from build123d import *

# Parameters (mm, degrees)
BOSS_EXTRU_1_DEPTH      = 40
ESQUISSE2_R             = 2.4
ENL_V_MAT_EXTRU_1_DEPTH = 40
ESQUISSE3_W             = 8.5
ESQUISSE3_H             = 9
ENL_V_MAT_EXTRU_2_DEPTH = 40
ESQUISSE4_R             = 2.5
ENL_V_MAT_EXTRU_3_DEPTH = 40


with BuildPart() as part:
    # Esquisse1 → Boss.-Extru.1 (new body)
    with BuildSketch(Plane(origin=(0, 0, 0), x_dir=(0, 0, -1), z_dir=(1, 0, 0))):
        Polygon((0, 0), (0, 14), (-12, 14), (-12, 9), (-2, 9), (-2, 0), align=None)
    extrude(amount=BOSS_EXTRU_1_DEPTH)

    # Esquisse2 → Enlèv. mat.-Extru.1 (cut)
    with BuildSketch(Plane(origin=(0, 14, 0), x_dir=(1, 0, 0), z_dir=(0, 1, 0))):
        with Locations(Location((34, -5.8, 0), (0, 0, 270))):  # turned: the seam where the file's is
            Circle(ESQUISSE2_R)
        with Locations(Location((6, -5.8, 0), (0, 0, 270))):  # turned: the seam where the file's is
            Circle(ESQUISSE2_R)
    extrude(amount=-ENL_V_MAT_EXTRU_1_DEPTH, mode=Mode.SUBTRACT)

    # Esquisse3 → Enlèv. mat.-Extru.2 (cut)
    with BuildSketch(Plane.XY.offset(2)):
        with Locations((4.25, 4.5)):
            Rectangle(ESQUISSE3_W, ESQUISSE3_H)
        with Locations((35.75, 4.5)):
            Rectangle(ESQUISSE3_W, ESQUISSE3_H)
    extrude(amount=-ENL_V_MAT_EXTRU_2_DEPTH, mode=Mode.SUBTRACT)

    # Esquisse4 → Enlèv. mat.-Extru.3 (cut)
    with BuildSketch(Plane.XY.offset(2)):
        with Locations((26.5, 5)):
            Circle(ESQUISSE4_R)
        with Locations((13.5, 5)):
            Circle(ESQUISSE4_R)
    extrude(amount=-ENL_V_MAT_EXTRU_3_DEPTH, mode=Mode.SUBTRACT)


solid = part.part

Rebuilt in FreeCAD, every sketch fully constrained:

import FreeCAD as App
import Part
import Sketcher
Q = App.Units.Quantity

doc = App.newDocument("Part")
params = doc.addObject("Spreadsheet::Sheet", "Params")
for row, (alias, value) in enumerate([
    ("sketch1_width", "14 mm"),
    ("sketch1_width2", "5 mm"),
    ("sketch1_height", "12 mm"),
    ("sketch1_height2", "10 mm"),
    ("pad1_length", "40 mm"),
    ("sketch2_diameter", "4.8 mm"),
    ("pocket1_length", "40 mm"),
    ("sketch3_height", "9 mm"),
    ("sketch3_width", "8.5 mm"),
    ("pocket2_length", "40 mm"),
    ("sketch4_diameter", "5 mm"),
    ("pocket3_length", "40 mm"),
], start=1):
    params.set(f"A{row}", alias)
    params.set(f"B{row}", "=" + value)
    params.setAlias(f"B{row}", alias)

body = doc.addObject("PartDesign::Body", "Body")

# Sketch on YZ plane
sketch1 = body.newObject("Sketcher::SketchObject", "Sketch")
sketch1.AttachmentSupport = (doc.getObject("YZ_Plane"), [""])
sketch1.MapMode = "FlatFace"
sketch1.addGeometry([
    Part.LineSegment(App.Vector(0, 0, 0), App.Vector(14, 0, 0)),  # 0
    Part.LineSegment(App.Vector(14, 0, 0), App.Vector(14, 12, 0)),  # 1
    Part.LineSegment(App.Vector(14, 12, 0), App.Vector(9, 12, 0)),  # 2
    Part.LineSegment(App.Vector(9, 12, 0), App.Vector(9, 2, 0)),  # 3
    Part.LineSegment(App.Vector(9, 2, 0), App.Vector(0, 2, 0)),  # 4
    Part.LineSegment(App.Vector(0, 2, 0), App.Vector(0, 0, 0)),  # 5
], False)
sketch1.addConstraint([
    Sketcher.Constraint("Coincident", 0, 2, 1, 1),
    Sketcher.Constraint("Coincident", 1, 2, 2, 1),
    Sketcher.Constraint("Coincident", 2, 2, 3, 1),
    Sketcher.Constraint("Coincident", 3, 2, 4, 1),
    Sketcher.Constraint("Coincident", 4, 2, 5, 1),
    Sketcher.Constraint("Coincident", 5, 2, 0, 1),
    Sketcher.Constraint("Horizontal", 0),
    Sketcher.Constraint("Vertical", 1),
    Sketcher.Constraint("Horizontal", 2),
    Sketcher.Constraint("Vertical", 3),
    Sketcher.Constraint("Horizontal", 4),
    Sketcher.Constraint("Vertical", 5),
    Sketcher.Constraint("Coincident", 5, 2, -1, 1),
    Sketcher.Constraint("DistanceX", 0, 1, 0, 2, Q("14 mm")),
    Sketcher.Constraint("DistanceX", 2, 2, 2, 1, Q("5 mm")),
    Sketcher.Constraint("DistanceY", 1, 1, 1, 2, Q("12 mm")),
    Sketcher.Constraint("DistanceY", 3, 2, 3, 1, Q("10 mm")),
])
sketch1.setExpression("Constraints[13]", "Params.sketch1_width")
sketch1.setExpression("Constraints[14]", "Params.sketch1_width2")
sketch1.setExpression("Constraints[15]", "Params.sketch1_height")
sketch1.setExpression("Constraints[16]", "Params.sketch1_height2")
pad1 = body.newObject("PartDesign::Pad", "Pad")
pad1.Profile = sketch1
pad1.setExpression("Length", "Params.pad1_length")

# Sketch on XZ plane
sketch2 = body.newObject("Sketcher::SketchObject", "Sketch001")
sketch2.AttachmentSupport = (doc.getObject("XZ_Plane"), [""])
sketch2.MapMode = "FlatFace"
sketch2.AttachmentOffset = App.Placement(App.Vector(0, 0, -14), App.Rotation())
sketch2.addGeometry([
    Part.Circle(App.Vector(34, 5.8, 0), App.Vector(0, 0, 1), 2.4),
    Part.Circle(App.Vector(6, 5.8, 0), App.Vector(0, 0, 1), 2.4),
], False)
sketch2.addConstraint([
    Sketcher.Constraint("Equal", 0, 1),
    Sketcher.Constraint("Horizontal", 0, 3, 1, 3),
    Sketcher.Constraint("Diameter", 0, Q("4.8 mm")),
    Sketcher.Constraint("DistanceX", -1, 1, 0, 3, Q("34 mm")),
    Sketcher.Constraint("DistanceX", -1, 1, 1, 3, Q("6 mm")),
    Sketcher.Constraint("DistanceY", -1, 1, 0, 3, Q("5.8 mm")),
])
sketch2.setExpression("Constraints[2]", "Params.sketch2_diameter")
pocket1 = body.newObject("PartDesign::Pocket", "Pocket")
pocket1.Profile = sketch2
pocket1.setExpression("Length", "Params.pocket1_length")
pocket1.Reversed = True

# Sketch on XY plane
sketch3 = body.newObject("Sketcher::SketchObject", "Sketch002")
sketch3.AttachmentSupport = (doc.getObject("XY_Plane"), [""])
sketch3.MapMode = "FlatFace"
sketch3.AttachmentOffset = App.Placement(App.Vector(0, 0, 2), App.Rotation())
sketch3.addGeometry([
    Part.LineSegment(App.Vector(0, 9, 0), App.Vector(0, 0, 0)),  # 0
    Part.LineSegment(App.Vector(0, 0, 0), App.Vector(8, 0, 0)),  # 1
    Part.LineSegment(App.Vector(8, 0, 0), App.Vector(8, 9, 0)),  # 2
    Part.LineSegment(App.Vector(8, 9, 0), App.Vector(0, 9, 0)),  # 3
    Part.LineSegment(App.Vector(32, 9, 0), App.Vector(32, 0, 0)),  # 4
    Part.LineSegment(App.Vector(32, 0, 0), App.Vector(40, 0, 0)),  # 5
    Part.LineSegment(App.Vector(40, 0, 0), App.Vector(40, 9, 0)),  # 6
    Part.LineSegment(App.Vector(40, 9, 0), App.Vector(32, 9, 0)),  # 7
], False)
sketch3.addConstraint([
    Sketcher.Constraint("Coincident", 0, 2, 1, 1),
    Sketcher.Constraint("Coincident", 1, 2, 2, 1),
    Sketcher.Constraint("Coincident", 2, 2, 3, 1),
    Sketcher.Constraint("Coincident", 3, 2, 0, 1),
    Sketcher.Constraint("Coincident", 4, 2, 5, 1),
    Sketcher.Constraint("Coincident", 5, 2, 6, 1),
    Sketcher.Constraint("Coincident", 6, 2, 7, 1),
    Sketcher.Constraint("Coincident", 7, 2, 4, 1),
    Sketcher.Constraint("Vertical", 0),
    Sketcher.Constraint("Horizontal", 1),
    Sketcher.Constraint("Vertical", 2),
    Sketcher.Constraint("Horizontal", 3),
    Sketcher.Constraint("Vertical", 4),
    Sketcher.Constraint("Horizontal", 5),
    Sketcher.Constraint("Vertical", 6),
    Sketcher.Constraint("Horizontal", 7),
    Sketcher.Constraint("Coincident", 0, 2, -1, 1),
    Sketcher.Constraint("PointOnObject", 4, 2, -1),
    Sketcher.Constraint("Horizontal", 3, 2, 6, 2),
    Sketcher.Constraint("Equal", 3, 5),
    Sketcher.Constraint("DistanceY", 0, 2, 0, 1, Q("9 mm")),
    Sketcher.Constraint("DistanceX", 1, 1, 1, 2, Q("8.5 mm")),
    Sketcher.Constraint("DistanceX", -1, 1, 5, 2, Q("40 mm")),
])
sketch3.setExpression("Constraints[20]", "Params.sketch3_height")
sketch3.setExpression("Constraints[21]", "Params.sketch3_width")
pocket2 = body.newObject("PartDesign::Pocket", "Pocket001")
pocket2.Profile = sketch3
pocket2.setExpression("Length", "Params.pocket2_length")

# Sketch on XY plane
sketch4 = body.newObject("Sketcher::SketchObject", "Sketch003")
sketch4.AttachmentSupport = (doc.getObject("XY_Plane"), [""])
sketch4.MapMode = "FlatFace"
sketch4.AttachmentOffset = App.Placement(App.Vector(0, 0, 2), App.Rotation())
sketch4.addGeometry([
    Part.Circle(App.Vector(26.5, 5, 0), App.Vector(0, 0, 1), 2.5),
    Part.Circle(App.Vector(13.5, 5, 0), App.Vector(0, 0, 1), 2.5),
], False)
sketch4.addConstraint([
    Sketcher.Constraint("Equal", 0, 1),
    Sketcher.Constraint("Horizontal", 0, 3, 1, 3),
    Sketcher.Constraint("Diameter", 0, Q("5 mm")),
    Sketcher.Constraint("DistanceY", -1, 1, 0, 3, Q("5 mm")),
    Sketcher.Constraint("DistanceX", 1, 3, 0, 3, Q("13 mm")),
    Sketcher.Constraint("DistanceX", -1, 1, 0, 3, Q("26.5 mm")),
])
sketch4.setExpression("Constraints[2]", "Params.sketch4_diameter")
pocket3 = body.newObject("PartDesign::Pocket", "Pocket002")
pocket3.Profile = sketch4
pocket3.setExpression("Length", "Params.pocket3_length")

doc.recompute()
